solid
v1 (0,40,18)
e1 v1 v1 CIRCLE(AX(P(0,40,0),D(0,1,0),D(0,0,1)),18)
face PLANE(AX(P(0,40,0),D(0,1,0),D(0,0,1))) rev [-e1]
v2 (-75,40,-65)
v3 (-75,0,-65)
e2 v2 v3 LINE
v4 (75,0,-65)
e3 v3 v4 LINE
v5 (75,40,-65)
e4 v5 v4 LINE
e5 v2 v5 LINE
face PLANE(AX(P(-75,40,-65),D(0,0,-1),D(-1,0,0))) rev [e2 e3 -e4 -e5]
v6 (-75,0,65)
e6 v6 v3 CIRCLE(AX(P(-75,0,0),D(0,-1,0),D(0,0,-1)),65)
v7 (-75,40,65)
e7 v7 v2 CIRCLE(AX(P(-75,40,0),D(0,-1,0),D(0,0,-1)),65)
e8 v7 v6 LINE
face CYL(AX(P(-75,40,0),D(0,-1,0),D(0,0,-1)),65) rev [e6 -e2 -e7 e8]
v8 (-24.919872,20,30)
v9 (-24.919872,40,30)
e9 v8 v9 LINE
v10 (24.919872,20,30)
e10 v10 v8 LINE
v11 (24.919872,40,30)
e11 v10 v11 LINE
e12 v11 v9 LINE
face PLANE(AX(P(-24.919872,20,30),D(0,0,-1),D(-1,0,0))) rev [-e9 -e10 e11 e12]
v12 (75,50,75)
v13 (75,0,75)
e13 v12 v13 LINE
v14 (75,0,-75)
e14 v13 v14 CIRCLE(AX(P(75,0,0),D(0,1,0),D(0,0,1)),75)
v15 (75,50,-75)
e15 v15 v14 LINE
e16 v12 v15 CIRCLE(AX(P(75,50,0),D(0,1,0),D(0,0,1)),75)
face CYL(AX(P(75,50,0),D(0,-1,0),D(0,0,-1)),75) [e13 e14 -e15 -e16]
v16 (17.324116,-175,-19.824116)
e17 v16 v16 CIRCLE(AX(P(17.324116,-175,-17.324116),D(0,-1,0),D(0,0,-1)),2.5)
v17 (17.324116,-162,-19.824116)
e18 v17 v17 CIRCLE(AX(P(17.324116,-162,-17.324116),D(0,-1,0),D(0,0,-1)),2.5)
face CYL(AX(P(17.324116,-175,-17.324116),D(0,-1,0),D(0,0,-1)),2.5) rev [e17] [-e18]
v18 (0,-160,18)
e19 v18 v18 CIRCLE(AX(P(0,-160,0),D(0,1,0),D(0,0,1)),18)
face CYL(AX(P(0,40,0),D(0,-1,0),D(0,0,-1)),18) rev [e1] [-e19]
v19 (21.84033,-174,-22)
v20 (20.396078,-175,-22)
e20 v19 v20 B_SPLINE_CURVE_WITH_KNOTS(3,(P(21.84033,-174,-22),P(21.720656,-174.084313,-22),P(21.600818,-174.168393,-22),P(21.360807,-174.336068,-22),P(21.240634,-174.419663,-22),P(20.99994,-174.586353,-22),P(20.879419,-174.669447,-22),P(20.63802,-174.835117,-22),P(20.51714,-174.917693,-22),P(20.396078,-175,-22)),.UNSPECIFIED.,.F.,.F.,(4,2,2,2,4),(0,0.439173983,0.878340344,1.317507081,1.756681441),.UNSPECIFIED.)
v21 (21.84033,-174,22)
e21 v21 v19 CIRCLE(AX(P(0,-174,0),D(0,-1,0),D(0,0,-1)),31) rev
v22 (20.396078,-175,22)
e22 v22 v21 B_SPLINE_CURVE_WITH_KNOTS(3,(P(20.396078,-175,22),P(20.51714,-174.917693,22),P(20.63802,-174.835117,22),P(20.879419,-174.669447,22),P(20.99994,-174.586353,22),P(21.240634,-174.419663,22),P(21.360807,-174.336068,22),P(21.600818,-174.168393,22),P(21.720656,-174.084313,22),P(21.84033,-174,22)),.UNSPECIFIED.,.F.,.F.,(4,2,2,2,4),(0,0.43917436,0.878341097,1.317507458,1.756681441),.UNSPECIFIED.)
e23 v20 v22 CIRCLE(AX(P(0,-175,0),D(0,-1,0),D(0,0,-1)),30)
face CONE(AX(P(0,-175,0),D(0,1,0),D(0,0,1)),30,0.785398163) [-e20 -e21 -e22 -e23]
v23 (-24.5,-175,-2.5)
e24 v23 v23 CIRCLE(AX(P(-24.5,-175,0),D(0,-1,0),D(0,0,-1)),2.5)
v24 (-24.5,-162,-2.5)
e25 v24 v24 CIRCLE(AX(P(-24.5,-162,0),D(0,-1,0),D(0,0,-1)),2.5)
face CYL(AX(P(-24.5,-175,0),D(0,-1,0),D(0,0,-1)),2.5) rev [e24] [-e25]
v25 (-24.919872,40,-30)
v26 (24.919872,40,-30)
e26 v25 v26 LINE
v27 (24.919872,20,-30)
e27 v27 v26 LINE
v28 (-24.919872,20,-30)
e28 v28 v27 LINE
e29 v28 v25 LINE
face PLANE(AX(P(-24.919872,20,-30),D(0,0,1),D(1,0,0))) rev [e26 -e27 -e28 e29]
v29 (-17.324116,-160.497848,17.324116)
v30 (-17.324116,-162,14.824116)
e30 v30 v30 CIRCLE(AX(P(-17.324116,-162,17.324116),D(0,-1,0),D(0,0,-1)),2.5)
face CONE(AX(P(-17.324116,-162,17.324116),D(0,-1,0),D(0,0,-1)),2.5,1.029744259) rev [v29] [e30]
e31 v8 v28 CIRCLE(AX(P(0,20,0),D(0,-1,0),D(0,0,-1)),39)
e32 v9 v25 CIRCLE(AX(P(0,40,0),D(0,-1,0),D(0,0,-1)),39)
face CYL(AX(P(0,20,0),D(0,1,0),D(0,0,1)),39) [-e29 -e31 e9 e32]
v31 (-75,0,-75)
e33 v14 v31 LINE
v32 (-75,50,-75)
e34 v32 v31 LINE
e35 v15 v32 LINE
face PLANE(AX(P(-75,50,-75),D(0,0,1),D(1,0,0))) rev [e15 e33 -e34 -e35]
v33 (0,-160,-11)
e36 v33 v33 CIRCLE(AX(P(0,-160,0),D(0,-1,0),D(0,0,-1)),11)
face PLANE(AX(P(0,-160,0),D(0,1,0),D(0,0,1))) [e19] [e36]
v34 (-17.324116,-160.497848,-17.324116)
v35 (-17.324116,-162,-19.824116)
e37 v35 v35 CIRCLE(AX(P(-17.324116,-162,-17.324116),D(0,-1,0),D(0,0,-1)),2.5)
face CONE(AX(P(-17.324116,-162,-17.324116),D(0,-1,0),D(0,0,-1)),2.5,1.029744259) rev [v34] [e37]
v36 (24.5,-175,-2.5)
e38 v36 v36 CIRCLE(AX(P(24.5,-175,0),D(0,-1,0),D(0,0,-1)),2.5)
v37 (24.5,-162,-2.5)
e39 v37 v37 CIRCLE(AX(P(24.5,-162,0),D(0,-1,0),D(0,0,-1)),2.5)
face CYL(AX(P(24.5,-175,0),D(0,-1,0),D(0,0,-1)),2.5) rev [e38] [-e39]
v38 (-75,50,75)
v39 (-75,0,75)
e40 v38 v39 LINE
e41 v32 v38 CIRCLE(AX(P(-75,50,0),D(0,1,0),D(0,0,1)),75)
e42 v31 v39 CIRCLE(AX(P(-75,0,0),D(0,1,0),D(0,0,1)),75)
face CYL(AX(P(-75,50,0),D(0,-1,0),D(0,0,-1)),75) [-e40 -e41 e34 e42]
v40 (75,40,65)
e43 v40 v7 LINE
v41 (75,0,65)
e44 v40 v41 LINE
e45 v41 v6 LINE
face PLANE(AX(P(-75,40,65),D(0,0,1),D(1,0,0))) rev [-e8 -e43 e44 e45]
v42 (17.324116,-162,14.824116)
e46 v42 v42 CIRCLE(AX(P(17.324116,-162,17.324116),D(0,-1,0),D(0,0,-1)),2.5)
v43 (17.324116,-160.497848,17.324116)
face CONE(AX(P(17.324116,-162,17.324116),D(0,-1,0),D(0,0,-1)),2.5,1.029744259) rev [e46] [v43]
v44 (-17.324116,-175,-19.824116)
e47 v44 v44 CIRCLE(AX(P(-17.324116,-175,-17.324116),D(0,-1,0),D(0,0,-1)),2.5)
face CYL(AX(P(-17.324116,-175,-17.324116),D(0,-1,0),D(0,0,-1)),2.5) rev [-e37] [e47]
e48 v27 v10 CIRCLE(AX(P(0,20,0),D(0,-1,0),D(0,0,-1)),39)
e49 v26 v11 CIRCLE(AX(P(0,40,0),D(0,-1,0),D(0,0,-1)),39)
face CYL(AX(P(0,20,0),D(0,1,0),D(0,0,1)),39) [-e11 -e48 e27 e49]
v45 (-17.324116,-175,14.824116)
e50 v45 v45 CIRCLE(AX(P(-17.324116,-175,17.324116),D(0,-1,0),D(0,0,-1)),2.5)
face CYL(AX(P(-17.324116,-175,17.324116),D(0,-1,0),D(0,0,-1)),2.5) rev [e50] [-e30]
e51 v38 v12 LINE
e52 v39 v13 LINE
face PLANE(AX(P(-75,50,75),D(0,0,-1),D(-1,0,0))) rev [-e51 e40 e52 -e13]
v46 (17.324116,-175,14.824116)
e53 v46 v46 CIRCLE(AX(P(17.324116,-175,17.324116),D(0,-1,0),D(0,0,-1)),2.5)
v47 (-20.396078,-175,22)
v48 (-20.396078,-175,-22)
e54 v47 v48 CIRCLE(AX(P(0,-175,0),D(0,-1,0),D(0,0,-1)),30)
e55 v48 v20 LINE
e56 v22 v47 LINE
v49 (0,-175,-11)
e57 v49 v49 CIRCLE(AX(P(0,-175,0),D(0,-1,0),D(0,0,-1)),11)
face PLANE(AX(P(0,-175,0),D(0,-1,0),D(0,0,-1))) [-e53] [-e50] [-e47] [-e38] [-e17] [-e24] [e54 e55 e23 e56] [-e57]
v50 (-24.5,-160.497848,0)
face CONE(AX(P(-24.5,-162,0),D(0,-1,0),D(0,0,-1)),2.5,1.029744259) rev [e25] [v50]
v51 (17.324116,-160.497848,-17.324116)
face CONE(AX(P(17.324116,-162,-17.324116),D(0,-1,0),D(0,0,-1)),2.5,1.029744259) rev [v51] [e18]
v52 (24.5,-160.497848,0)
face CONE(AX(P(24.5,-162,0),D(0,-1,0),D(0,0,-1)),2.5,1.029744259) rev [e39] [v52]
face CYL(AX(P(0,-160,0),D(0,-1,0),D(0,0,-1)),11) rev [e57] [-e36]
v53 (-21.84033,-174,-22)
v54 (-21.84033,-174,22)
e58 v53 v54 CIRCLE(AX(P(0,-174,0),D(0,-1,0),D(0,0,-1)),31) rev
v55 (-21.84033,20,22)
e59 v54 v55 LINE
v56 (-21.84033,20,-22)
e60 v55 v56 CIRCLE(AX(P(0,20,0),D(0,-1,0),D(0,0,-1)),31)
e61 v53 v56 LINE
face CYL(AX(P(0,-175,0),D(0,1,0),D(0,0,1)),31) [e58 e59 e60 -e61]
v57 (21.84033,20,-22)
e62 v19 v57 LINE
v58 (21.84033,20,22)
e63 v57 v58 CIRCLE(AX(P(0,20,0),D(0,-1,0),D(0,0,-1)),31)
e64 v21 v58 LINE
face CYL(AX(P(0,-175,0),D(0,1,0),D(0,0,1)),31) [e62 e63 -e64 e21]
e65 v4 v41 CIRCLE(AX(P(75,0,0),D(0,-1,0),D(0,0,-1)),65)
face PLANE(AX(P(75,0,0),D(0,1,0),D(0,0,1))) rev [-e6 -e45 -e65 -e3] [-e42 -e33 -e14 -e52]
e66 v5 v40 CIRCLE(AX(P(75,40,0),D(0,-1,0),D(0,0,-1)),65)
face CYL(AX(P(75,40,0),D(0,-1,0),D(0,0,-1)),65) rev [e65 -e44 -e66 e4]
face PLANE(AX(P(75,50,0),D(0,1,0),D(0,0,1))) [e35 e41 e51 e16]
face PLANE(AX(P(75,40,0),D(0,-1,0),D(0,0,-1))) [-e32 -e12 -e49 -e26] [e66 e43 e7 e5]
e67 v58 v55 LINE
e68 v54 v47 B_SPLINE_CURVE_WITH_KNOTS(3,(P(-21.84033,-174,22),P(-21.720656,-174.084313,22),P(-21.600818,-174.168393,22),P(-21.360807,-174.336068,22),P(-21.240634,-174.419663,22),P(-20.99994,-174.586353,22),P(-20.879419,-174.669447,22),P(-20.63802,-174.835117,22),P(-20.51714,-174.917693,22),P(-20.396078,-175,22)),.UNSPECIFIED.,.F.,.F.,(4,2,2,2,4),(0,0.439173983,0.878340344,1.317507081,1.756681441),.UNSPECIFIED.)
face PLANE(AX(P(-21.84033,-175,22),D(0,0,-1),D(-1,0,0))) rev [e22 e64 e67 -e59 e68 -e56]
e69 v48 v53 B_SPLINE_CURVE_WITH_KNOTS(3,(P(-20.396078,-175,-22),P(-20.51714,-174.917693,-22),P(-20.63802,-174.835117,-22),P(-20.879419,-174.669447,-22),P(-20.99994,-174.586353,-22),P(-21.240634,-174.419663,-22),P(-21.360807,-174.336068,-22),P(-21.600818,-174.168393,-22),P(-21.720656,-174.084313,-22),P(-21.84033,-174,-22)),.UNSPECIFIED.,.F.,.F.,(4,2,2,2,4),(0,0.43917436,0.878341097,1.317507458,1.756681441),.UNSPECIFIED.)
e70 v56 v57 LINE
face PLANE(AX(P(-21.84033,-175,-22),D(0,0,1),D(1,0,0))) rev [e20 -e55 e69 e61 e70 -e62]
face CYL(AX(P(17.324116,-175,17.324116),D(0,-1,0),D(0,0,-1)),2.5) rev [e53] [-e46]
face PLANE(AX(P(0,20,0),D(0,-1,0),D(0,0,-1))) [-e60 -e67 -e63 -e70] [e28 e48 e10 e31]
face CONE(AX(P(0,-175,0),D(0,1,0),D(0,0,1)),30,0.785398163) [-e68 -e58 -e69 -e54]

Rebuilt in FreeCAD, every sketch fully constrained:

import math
import FreeCAD as App
import Part
import Sketcher

V = App.Vector


def edges_at(feature, points):
    """Names of the edges that pass closest to the given points."""
    edges = feature.Shape.Edges
    near = lambda p: min(range(len(edges)), key=lambda i: edges[i].distToShape(Part.Vertex(*p))[0])
    return sorted({f"Edge{near(p) + 1}" for p in points})

doc = App.newDocument("Part")
body = doc.addObject("PartDesign::Body", "Body")

# Sketch on XZ plane
sketch1 = doc.addObject("Sketcher::SketchObject", "Sketch")
body.addObject(sketch1)
sketch1.AttachmentSupport = (doc.XZ_Plane, [""])
sketch1.MapMode = "FlatFace"
sketch1.addGeometry([
    Part.LineSegment(V(75, -75, 0), V(-75, -75, 0)),
    Part.ArcOfCircle(Part.Circle(V(-75, 0, 0), V(0, 0, 1), 75), math.radians(90), math.radians(270)),
    Part.LineSegment(V(-75, 75, 0), V(75, 75, 0)),
    Part.ArcOfCircle(Part.Circle(V(75, 0, 0), V(0, 0, 1), 75), math.radians(-90), math.radians(90)),
], False)
sketch1.addConstraint([
    Sketcher.Constraint("Tangent", 0, 2, 1, 2),
    Sketcher.Constraint("Tangent", 1, 1, 2, 1),
    Sketcher.Constraint("Tangent", 2, 2, 3, 2),
    Sketcher.Constraint("Tangent", 3, 1, 0, 1),
    Sketcher.Constraint("Horizontal", 0),
    Sketcher.Constraint("Horizontal", 2),
    Sketcher.Constraint("Symmetric", 1, 3, 3, 3, -1, 1),
    Sketcher.Constraint("Radius", 1, 75.0),
    Sketcher.Constraint("DistanceX", 0, 2, 0, 1, 150.0),
])
pad1 = doc.addObject("PartDesign::Pad", "Pad")
body.addObject(pad1)
pad1.Profile = sketch1
pad1.Length = 50
pad1.Reversed = True

# Sketch on XZ plane
sketch2 = doc.addObject("Sketcher::SketchObject", "Sketch001")
body.addObject(sketch2)
sketch2.AttachmentSupport = (doc.XZ_Plane, [""])
sketch2.MapMode = "FlatFace"
sketch2.addGeometry([
    Part.LineSegment(V(75, 65, 0), V(-75, 65, 0)),
    Part.ArcOfCircle(Part.Circle(V(-75, 0, 0), V(0, 0, 1), 65), math.radians(90), math.radians(270)),
    Part.LineSegment(V(-75, -65, 0), V(75, -65, 0)),
    Part.ArcOfCircle(Part.Circle(V(75, 0, 0), V(0, 0, 1), 65), math.radians(-90), math.radians(90)),
], False)
sketch2.addConstraint([
    Sketcher.Constraint("Tangent", 0, 2, 1, 1),
    Sketcher.Constraint("Tangent", 1, 2, 2, 1),
    Sketcher.Constraint("Tangent", 2, 2, 3, 1),
    Sketcher.Constraint("Tangent", 3, 2, 0, 1),
    Sketcher.Constraint("Horizontal", 0),
    Sketcher.Constraint("Horizontal", 2),
    Sketcher.Constraint("Symmetric", 1, 3, 3, 3, -1, 1),
    Sketcher.Constraint("Radius", 1, 65.0),
    Sketcher.Constraint("DistanceX", 0, 2, 0, 1, 150.0),
])
pocket1 = doc.addObject("PartDesign::Pocket", "Pocket")
body.addObject(pocket1)
pocket1.Profile = sketch2
pocket1.Length = 40

# Sketch on XZ plane
sketch3 = doc.addObject("Sketcher::SketchObject", "Sketch002")
body.addObject(sketch3)
sketch3.AttachmentSupport = (doc.XZ_Plane, [""])
sketch3.MapMode = "FlatFace"
sketch3.AttachmentOffset = App.Placement(V(0, 0, -40), App.Rotation())
sketch3.addGeometry([
    Part.LineSegment(V(24.919872, 30, 0), V(-24.919872, 30, 0)),
    Part.ArcOfCircle(Part.Circle(V(0, 0, 0), V(0, 0, 1), 39), math.radians(129.715137), math.radians(230.284863)),
    Part.LineSegment(V(-24.919872, -30, 0), V(24.919872, -30, 0)),
    Part.ArcOfCircle(Part.Circle(V(0, 0, 0), V(0, 0, 1), 39), math.radians(-50.284863), math.radians(50.284863)),
], False)
sketch3.addConstraint([
    Sketcher.Constraint("Coincident", 0, 2, 1, 1),
    Sketcher.Constraint("Coincident", 1, 2, 2, 1),
    Sketcher.Constraint("Coincident", 2, 2, 3, 1),
    Sketcher.Constraint("Coincident", 3, 2, 0, 1),
    Sketcher.Constraint("Horizontal", 0),
    Sketcher.Constraint("Horizontal", 2),
    Sketcher.Constraint("Coincident", 1, 3, -1, 1),
    Sketcher.Constraint("Coincident", 3, 3, -1, 1),
    Sketcher.Constraint("Equal", 1, 3),
    Sketcher.Constraint("Vertical", 0, 2, 1, 2),
    Sketcher.Constraint("Radius", 1, 39.0),
    Sketcher.Constraint("DistanceY", -1, 1, 0, 2, 30.0),
])
pad2 = doc.addObject("PartDesign::Pad", "Pad001")
body.addObject(pad2)
pad2.Profile = sketch3
pad2.Length = 20

# Sketch on XZ plane
sketch4 = doc.addObject("Sketcher::SketchObject", "Sketch003")
body.addObject(sketch4)
sketch4.AttachmentSupport = (doc.XZ_Plane, [""])
sketch4.MapMode = "FlatFace"
sketch4.AttachmentOffset = App.Placement(V(0, 0, -20), App.Rotation())
sketch4.addGeometry([
    Part.LineSegment(V(21.84033, 22, 0), V(-21.84033, 22, 0)),
    Part.ArcOfCircle(Part.Circle(V(0, 0, 0), V(0, 0, 1), 31), math.radians(134.791325), math.radians(225.208675)),
    Part.LineSegment(V(-21.84033, -22, 0), V(21.84033, -22, 0)),
    Part.ArcOfCircle(Part.Circle(V(0, 0, 0), V(0, 0, 1), 31), math.radians(-45.208675), math.radians(45.208675)),
], False)
sketch4.addConstraint([
    Sketcher.Constraint("Coincident", 0, 2, 1, 1),
    Sketcher.Constraint("Coincident", 1, 2, 2, 1),
    Sketcher.Constraint("Coincident", 2, 2, 3, 1),
    Sketcher.Constraint("Coincident", 3, 2, 0, 1),
    Sketcher.Constraint("Horizontal", 0),
    Sketcher.Constraint("Horizontal", 2),
    Sketcher.Constraint("Coincident", 1, 3, -1, 1),
    Sketcher.Constraint("Coincident", 3, 3, -1, 1),
    Sketcher.Constraint("Equal", 1, 3),
    Sketcher.Constraint("Vertical", 0, 2, 1, 2),
    Sketcher.Constraint("Radius", 1, 31.0),
    Sketcher.Constraint("DistanceY", -1, 1, 0, 2, 22.0),
])
pad3 = doc.addObject("PartDesign::Pad", "Pad002")
body.addObject(pad3)
pad3.Profile = sketch4
pad3.Length = 195

# Sketch on XZ plane
sketch5 = doc.addObject("Sketcher::SketchObject", "Sketch004")
body.addObject(sketch5)
sketch5.AttachmentSupport = (doc.XZ_Plane, [""])
sketch5.MapMode = "FlatFace"
sketch5.AttachmentOffset = App.Placement(V(0, 0, 175), App.Rotation())
sketch5.addGeometry(Part.Circle(V(0, 0, 0), V(0, 0, 1), 11), False)
sketch5.addConstraint([
    Sketcher.Constraint("Coincident", 0, 3, -1, 1),
    Sketcher.Constraint("Diameter", 0, 22.0),
])
pocket2 = doc.addObject("PartDesign::Pocket", "Pocket001")
body.addObject(pocket2)
pocket2.Profile = sketch5
pocket2.Length = 15

# Sketch on XZ plane
sketch6 = doc.addObject("Sketcher::SketchObject", "Sketch005")
body.addObject(sketch6)
sketch6.AttachmentSupport = (doc.XZ_Plane, [""])
sketch6.MapMode = "FlatFace"
sketch6.AttachmentOffset = App.Placement(V(0, 0, 160), App.Rotation())
sketch6.addGeometry(Part.Circle(V(0, 0, 0), V(0, 0, 1), 18), False)
sketch6.addConstraint([
    Sketcher.Constraint("Coincident", 0, 3, -1, 1),
    Sketcher.Constraint("Diameter", 0, 36.0),
])
pocket3 = doc.addObject("PartDesign::Pocket", "Pocket002")
body.addObject(pocket3)
pocket3.Profile = sketch6
pocket3.Length = 200

# Sketch on XZ plane
sketch7 = doc.addObject("Sketcher::SketchObject", "Sketch006")
body.addObject(sketch7)
sketch7.AttachmentSupport = (doc.XZ_Plane, [""])
sketch7.MapMode = "FlatFace"
sketch7.AttachmentOffset = App.Placement(V(0, 0, 175), App.Rotation())
sketch7.addGeometry([
    Part.Circle(V(-24.5, 0, 0), V(0, 0, 1), 2.5),  # 0
    Part.Circle(V(-17.324116, 17.324116, 0), V(0, 0, 1), 2.5),  # 1
    Part.Circle(V(17.324116, 17.324116, 0), V(0, 0, 1), 2.5),  # 2
    Part.Circle(V(24.5, 0, 0), V(0, 0, 1), 2.5),  # 3
    Part.Circle(V(17.324116, -17.324116, 0), V(0, 0, 1), 2.5),  # 4
    Part.Circle(V(-17.324116, -17.324116, 0), V(0, 0, 1), 2.5),  # 5
], False)
sketch7.addConstraint([
    Sketcher.Constraint("Equal", 0, 1),
    Sketcher.Constraint("Equal", 1, 2),
    Sketcher.Constraint("Equal", 2, 3),
    Sketcher.Constraint("Equal", 3, 4),
    Sketcher.Constraint("Equal", 4, 5),
    Sketcher.Constraint("Symmetric", 0, 3, 3, 3, -1, 1),
    Sketcher.Constraint("Symmetric", 1, 3, 4, 3, -1, 1),
    Sketcher.Constraint("Symmetric", 2, 3, 5, 3, -1, 1),
    Sketcher.Constraint("Symmetric", 1, 3, 2, 3, -2),
    Sketcher.Constraint("PointOnObject", 0, 3, -1),
    Sketcher.Constraint("Diameter", 0, 5.0),
    Sketcher.Constraint("DistanceX", 0, 3, 3, 3, 49.0),
    Sketcher.Constraint("DistanceX", 1, 3, -1, 1, 17.324116),
    Sketcher.Constraint("DistanceY", -1, 1, 1, 3, 17.324116),
])
doc.recompute()
hole = doc.addObject("PartDesign::Hole", "Hole")
body.addObject(hole)
hole.Profile = sketch7
hole.ThreadType = "None"
hole.Diameter = 5
hole.DepthType = "Dimension"
hole.Depth = 13
hole.DrillPoint = "Angled"
hole.DrillPointAngle = 118
doc.recompute()

chamfer = doc.addObject("PartDesign::Chamfer", "Chamfer")
body.addObject(chamfer)
chamfer.Base = (hole, edges_at(hole, [(-31, -175, 0), (31, -175, 0)]))
chamfer.Size = 1

doc.recompute()
